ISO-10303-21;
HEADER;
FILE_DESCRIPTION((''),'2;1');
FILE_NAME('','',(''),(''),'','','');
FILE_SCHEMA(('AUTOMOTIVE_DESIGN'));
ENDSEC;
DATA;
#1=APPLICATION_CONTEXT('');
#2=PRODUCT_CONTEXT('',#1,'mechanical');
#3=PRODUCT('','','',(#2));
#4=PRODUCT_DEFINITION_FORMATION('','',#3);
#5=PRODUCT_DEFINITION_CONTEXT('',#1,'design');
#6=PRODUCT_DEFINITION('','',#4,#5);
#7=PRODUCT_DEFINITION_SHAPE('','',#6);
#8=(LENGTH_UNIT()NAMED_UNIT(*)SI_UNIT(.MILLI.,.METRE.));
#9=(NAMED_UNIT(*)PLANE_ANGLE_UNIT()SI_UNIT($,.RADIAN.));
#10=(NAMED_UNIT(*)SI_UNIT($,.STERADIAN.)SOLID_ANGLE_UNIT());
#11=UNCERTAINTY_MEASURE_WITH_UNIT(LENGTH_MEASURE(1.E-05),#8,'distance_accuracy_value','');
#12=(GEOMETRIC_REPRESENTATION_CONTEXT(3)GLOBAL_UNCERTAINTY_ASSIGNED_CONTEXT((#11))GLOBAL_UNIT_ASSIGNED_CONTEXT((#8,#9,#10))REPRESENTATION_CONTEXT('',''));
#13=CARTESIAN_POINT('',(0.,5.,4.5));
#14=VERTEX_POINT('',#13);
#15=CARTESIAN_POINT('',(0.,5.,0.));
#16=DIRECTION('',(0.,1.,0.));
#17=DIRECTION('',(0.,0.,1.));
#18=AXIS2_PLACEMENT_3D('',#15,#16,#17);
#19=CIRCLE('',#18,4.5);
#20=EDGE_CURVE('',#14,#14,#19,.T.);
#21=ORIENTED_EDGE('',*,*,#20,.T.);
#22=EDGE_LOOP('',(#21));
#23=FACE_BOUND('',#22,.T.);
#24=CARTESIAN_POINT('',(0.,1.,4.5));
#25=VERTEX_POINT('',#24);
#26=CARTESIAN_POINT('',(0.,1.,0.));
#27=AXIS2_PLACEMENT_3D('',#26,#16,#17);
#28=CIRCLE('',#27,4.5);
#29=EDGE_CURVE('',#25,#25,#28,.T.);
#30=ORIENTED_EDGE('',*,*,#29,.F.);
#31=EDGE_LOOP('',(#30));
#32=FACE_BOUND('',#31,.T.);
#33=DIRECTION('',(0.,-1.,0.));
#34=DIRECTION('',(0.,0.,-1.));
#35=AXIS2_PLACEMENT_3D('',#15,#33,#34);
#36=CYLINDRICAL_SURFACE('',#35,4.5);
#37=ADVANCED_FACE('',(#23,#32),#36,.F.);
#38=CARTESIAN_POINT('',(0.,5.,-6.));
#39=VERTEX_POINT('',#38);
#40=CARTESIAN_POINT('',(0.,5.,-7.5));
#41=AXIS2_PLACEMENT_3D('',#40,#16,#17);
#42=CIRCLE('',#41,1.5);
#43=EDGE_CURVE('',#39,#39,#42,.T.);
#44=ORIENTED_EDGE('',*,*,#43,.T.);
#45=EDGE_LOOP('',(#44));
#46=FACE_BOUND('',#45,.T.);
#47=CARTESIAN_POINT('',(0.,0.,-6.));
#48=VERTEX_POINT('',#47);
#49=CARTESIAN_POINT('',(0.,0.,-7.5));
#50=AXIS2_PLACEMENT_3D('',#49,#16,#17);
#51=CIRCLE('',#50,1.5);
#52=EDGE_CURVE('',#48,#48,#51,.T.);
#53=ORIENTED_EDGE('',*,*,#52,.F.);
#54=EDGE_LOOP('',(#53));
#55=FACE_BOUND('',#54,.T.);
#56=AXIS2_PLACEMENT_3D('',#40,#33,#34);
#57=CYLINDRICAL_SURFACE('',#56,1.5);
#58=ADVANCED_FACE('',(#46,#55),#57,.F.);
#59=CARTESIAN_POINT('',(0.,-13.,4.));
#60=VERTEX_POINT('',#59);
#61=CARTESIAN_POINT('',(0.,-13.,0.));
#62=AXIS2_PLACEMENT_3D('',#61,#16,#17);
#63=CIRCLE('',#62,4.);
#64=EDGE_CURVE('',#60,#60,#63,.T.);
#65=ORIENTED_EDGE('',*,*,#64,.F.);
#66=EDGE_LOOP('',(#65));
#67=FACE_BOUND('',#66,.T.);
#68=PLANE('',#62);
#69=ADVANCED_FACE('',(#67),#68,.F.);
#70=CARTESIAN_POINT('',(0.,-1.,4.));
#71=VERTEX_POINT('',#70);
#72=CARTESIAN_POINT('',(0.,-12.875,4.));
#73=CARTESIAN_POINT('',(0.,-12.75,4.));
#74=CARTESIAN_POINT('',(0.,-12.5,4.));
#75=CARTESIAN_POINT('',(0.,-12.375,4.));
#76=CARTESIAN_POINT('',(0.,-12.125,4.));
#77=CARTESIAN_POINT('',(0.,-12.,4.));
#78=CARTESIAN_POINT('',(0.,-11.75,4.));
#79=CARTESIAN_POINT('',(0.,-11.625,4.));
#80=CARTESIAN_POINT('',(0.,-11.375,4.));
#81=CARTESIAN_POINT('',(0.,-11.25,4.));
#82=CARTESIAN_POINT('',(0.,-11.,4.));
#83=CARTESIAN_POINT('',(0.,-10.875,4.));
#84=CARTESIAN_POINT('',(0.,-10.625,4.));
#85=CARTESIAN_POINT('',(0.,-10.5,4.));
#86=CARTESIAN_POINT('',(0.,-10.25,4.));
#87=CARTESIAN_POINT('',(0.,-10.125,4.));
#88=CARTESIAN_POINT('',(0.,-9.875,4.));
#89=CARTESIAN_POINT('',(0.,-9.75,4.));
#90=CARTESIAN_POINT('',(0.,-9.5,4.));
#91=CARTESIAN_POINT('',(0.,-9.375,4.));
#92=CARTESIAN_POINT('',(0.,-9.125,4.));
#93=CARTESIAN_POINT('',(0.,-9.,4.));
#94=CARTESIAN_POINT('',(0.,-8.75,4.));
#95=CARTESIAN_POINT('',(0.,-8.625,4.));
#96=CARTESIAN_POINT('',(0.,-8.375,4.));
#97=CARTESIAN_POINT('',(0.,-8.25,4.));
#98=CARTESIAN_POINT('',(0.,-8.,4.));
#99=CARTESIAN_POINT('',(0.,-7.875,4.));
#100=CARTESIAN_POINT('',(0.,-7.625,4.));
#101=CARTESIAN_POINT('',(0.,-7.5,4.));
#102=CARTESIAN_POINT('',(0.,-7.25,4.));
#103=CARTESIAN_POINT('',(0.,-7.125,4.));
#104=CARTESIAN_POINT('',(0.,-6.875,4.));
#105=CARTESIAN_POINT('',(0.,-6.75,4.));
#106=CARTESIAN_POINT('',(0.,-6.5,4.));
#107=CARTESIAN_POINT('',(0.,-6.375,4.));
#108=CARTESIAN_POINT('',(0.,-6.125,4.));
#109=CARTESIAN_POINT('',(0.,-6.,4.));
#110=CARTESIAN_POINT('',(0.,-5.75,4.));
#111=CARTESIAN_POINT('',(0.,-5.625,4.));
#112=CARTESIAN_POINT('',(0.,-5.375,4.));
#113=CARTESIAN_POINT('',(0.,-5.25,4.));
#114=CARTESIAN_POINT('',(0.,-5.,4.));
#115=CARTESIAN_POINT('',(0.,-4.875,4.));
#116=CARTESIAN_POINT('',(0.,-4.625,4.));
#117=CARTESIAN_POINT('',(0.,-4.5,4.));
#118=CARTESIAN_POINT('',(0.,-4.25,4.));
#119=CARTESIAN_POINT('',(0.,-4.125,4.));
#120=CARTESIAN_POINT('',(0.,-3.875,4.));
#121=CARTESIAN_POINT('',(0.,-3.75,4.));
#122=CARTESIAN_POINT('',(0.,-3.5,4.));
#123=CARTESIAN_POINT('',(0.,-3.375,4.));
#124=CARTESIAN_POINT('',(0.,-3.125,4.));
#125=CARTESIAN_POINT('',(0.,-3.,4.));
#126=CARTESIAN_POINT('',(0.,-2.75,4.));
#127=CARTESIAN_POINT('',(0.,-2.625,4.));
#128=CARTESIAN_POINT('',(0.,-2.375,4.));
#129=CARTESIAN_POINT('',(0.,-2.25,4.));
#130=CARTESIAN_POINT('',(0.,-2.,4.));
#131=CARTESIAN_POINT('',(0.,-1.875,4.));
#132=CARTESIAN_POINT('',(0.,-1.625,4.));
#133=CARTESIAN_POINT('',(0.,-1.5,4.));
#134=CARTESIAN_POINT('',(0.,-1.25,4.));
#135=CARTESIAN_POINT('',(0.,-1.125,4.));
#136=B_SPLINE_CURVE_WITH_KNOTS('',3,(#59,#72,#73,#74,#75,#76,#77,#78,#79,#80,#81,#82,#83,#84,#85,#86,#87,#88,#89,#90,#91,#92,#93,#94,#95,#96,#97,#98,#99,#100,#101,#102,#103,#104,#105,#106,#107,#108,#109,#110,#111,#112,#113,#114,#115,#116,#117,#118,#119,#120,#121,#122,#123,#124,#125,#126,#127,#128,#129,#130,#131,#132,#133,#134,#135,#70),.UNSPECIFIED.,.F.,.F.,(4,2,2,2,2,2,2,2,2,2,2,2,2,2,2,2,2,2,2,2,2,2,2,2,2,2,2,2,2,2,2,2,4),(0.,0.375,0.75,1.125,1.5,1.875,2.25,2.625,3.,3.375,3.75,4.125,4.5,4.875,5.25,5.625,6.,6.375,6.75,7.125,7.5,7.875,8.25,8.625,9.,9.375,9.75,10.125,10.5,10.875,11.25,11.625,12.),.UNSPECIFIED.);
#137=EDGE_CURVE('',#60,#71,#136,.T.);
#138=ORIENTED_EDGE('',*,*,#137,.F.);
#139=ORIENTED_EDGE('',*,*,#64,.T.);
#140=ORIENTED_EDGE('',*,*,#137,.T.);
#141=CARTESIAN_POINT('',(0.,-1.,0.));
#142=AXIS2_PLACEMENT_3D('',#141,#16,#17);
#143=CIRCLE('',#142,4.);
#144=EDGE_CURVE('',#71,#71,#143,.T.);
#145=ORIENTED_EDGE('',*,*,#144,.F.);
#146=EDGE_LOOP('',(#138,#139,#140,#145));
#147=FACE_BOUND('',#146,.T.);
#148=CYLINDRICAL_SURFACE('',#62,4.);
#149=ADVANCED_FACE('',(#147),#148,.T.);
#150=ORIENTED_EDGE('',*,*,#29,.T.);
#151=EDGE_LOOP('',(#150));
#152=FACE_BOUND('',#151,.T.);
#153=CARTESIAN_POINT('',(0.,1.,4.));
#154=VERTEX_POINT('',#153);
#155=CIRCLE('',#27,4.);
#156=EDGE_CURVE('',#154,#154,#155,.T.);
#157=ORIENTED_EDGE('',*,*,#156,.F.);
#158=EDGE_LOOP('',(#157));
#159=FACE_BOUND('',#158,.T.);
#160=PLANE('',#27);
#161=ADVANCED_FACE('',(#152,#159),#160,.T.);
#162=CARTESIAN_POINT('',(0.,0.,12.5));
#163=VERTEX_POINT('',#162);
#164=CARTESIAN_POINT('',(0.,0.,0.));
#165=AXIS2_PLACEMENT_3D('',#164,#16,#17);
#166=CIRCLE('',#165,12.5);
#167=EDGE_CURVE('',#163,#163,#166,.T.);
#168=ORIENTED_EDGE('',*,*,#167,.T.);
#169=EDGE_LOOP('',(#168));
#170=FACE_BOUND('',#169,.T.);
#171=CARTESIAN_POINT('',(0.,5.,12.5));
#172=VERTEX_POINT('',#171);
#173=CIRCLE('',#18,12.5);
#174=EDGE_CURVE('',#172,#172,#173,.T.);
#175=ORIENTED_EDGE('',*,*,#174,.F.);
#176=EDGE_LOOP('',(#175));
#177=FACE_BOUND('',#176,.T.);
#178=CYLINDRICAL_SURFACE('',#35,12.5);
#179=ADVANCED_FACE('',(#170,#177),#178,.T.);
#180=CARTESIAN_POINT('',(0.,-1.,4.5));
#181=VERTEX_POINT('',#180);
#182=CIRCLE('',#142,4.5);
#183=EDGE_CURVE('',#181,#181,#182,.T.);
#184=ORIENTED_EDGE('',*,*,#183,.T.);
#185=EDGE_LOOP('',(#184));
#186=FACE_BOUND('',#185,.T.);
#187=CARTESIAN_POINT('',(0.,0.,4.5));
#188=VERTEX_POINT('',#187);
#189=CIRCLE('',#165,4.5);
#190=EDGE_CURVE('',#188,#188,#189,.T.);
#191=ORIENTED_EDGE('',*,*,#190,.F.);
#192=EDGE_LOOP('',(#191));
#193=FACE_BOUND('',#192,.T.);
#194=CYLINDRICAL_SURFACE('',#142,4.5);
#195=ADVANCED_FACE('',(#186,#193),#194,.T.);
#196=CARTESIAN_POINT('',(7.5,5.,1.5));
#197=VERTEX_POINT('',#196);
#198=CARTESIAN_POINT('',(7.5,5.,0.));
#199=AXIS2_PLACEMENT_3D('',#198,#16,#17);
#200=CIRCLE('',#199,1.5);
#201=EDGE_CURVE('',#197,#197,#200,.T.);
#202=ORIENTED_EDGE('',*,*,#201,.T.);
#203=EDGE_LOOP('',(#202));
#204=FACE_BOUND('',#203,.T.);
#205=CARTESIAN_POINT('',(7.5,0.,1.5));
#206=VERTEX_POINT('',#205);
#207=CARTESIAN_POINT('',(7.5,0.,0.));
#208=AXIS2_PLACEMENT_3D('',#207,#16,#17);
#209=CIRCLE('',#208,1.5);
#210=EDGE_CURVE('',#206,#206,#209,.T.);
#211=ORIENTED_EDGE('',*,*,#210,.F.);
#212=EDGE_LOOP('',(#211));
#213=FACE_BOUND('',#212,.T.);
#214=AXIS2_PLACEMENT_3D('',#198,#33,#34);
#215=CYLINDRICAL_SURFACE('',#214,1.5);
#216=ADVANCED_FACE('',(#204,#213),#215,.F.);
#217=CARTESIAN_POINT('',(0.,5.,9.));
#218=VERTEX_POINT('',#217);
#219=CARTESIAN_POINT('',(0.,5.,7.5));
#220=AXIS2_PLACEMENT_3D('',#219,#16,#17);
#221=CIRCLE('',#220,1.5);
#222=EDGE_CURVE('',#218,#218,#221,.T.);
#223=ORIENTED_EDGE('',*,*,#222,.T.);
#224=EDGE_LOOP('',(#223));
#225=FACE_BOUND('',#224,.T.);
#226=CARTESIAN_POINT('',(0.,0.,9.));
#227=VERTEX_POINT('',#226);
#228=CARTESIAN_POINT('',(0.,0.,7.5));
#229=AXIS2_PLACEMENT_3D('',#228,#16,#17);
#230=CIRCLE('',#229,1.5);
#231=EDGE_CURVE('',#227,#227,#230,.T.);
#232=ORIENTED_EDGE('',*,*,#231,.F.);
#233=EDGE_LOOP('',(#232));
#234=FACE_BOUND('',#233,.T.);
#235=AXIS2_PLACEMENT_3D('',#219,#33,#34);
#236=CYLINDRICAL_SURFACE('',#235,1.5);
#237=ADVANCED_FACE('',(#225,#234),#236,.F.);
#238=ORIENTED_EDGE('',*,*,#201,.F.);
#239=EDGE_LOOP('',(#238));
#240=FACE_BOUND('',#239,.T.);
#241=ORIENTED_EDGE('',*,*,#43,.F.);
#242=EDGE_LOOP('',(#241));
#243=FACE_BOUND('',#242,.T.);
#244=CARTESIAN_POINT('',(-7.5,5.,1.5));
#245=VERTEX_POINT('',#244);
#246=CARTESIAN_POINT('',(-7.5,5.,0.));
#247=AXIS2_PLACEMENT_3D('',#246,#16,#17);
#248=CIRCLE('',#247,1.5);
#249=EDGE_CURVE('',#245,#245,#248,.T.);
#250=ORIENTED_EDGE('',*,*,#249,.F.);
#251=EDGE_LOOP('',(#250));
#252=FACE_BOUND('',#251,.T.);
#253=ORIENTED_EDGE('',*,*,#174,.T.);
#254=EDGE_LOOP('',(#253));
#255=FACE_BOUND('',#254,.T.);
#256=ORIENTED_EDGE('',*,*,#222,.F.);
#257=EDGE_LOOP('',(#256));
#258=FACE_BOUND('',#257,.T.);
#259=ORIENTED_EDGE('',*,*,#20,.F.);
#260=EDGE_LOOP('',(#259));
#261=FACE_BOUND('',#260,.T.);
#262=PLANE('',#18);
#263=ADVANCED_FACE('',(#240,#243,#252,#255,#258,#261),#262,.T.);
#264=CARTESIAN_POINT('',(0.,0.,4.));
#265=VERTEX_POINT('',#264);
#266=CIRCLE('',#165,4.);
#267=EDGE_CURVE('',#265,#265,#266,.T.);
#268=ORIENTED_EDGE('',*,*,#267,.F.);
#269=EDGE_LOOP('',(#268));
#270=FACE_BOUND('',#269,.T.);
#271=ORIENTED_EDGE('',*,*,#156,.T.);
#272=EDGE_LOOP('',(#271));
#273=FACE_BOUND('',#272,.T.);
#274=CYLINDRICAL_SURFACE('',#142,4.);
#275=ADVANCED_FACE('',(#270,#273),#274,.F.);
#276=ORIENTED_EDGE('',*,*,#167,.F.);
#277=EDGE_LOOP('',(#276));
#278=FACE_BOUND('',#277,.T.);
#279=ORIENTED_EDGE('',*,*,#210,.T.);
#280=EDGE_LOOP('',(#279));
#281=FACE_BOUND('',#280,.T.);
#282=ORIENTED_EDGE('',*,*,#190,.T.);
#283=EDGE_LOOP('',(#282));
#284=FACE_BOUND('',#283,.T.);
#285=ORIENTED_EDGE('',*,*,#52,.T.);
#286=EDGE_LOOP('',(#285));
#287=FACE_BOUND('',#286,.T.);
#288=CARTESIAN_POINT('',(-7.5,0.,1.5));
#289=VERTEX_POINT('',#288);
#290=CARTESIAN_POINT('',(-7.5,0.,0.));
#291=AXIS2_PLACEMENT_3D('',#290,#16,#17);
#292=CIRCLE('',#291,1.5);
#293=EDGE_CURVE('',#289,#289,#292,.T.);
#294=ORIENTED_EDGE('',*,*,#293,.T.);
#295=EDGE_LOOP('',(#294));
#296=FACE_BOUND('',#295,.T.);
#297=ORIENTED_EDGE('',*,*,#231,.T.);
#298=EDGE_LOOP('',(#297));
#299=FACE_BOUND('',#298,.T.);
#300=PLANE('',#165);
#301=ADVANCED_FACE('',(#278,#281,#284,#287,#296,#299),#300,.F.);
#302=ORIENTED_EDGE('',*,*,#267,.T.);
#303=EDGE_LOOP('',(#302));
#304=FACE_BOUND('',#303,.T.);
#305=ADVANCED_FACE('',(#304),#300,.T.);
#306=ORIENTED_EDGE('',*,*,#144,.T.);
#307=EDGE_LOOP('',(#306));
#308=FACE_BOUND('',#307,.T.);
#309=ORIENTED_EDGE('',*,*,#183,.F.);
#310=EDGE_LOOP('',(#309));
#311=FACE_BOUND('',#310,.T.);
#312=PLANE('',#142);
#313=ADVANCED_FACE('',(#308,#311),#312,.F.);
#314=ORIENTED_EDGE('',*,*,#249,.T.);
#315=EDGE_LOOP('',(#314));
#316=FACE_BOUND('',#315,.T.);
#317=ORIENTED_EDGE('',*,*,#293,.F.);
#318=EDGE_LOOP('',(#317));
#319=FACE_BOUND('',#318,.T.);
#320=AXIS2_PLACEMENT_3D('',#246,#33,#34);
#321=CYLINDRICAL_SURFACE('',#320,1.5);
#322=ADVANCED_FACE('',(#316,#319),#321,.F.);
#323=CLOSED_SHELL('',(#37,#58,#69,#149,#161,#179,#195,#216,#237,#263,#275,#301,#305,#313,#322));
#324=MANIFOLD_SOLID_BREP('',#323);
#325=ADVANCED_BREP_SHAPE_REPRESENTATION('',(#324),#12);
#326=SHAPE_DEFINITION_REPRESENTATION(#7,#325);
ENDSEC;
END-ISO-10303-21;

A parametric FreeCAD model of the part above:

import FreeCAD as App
import Part
import Sketcher
Q = App.Units.Quantity

doc = App.newDocument("Part")
body = doc.addObject("PartDesign::Body", "Body")

sketch1 = body.newObject("Sketcher::SketchObject", "Sketch")
sketch1.AttachmentSupport = (doc.getObject("XZ_Plane"), [""])
sketch1.MapMode = "FlatFace"
sketch1.addGeometry(Part.Circle(App.Vector(0, 0, 0), App.Vector(0, 0, 1), 12.5), False)
sketch1.addGeometry(Part.Circle(App.Vector(0, -7.5, 0), App.Vector(0, 0, 1), 1.5), False)
sketch1.addGeometry(Part.Circle(App.Vector(-7.5, 0, 0), App.Vector(0, 0, 1), 1.5), False)
sketch1.addGeometry(Part.Circle(App.Vector(7.5, 0, 0), App.Vector(0, 0, 1), 1.5), False)
sketch1.addGeometry(Part.Circle(App.Vector(0, 0, 0), App.Vector(0, 0, 1), 4.5), False)
sketch1.addGeometry(Part.Circle(App.Vector(0, 7.5, 0), App.Vector(0, 0, 1), 1.5), False)
sketch1.addConstraint(Sketcher.Constraint("Coincident", 0, 3, -1, 1))
sketch1.addConstraint(Sketcher.Constraint("Coincident", 4, 3, -1, 1))
sketch1.addConstraint(Sketcher.Constraint("Equal", 1, 2))
sketch1.addConstraint(Sketcher.Constraint("Equal", 2, 3))
sketch1.addConstraint(Sketcher.Constraint("Equal", 3, 5))
sketch1.addConstraint(Sketcher.Constraint("Symmetric", 2, 3, 3, 3, -1, 1))
sketch1.addConstraint(Sketcher.Constraint("Symmetric", 1, 3, 5, 3, -1, 1))
sketch1.addConstraint(Sketcher.Constraint("PointOnObject", 1, 3, -2))
sketch1.addConstraint(Sketcher.Constraint("PointOnObject", 2, 3, -1))
sketch1.addConstraint(Sketcher.Constraint("Diameter", 0, Q("25 mm")))
sketch1.addConstraint(Sketcher.Constraint("Diameter", 1, Q("3 mm")))
sketch1.addConstraint(Sketcher.Constraint("Diameter", 4, Q("9 mm")))
sketch1.addConstraint(Sketcher.Constraint("DistanceX", 2, 3, 3, 3, Q("15 mm")))
sketch1.addConstraint(Sketcher.Constraint("DistanceY", 1, 3, 5, 3, Q("15 mm")))
pad1 = body.newObject("PartDesign::Pad", "Pad")
pad1.Profile = sketch1
pad1.Length = 5
pad1.Reversed = True
body2 = doc.addObject("PartDesign::Body", "Body001")

sketch2 = body2.newObject("Sketcher::SketchObject", "Sketch001")
sketch2.AttachmentSupport = (doc.getObject("XZ_Plane001"), [""])
sketch2.MapMode = "FlatFace"
sketch2.addGeometry(Part.Circle(App.Vector(0, 0, 0), App.Vector(0, 0, 1), 4), False)
sketch2.addConstraint(Sketcher.Constraint("Coincident", 0, 3, -1, 1))
sketch2.addConstraint(Sketcher.Constraint("Diameter", 0, Q("8 mm")))
pad2 = body2.newObject("PartDesign::Pad", "Pad001")
pad2.Profile = sketch2
pad2.Length = 13
body.AllowCompound = True
doc.recompute()

boolean = body.newObject("PartDesign::Boolean", "Boolean")
boolean.Type = "Fuse"
boolean.addObjects([body2])

sketch3 = body.newObject("Sketcher::SketchObject", "Sketch002")
sketch3.AttachmentSupport = (doc.getObject("XZ_Plane"), [""])
sketch3.MapMode = "FlatFace"
sketch3.addGeometry(Part.Circle(App.Vector(0, 0, 0), App.Vector(0, 0, 1), 4.5), False)
sketch3.addGeometry(Part.Circle(App.Vector(0, 0, 0), App.Vector(0, 0, 1), 4), False)
sketch3.addConstraint(Sketcher.Constraint("Coincident", 0, 3, -1, 1))
sketch3.addConstraint(Sketcher.Constraint("Coincident", 1, 3, -1, 1))
sketch3.addConstraint(Sketcher.Constraint("Diameter", 0, Q("9 mm")))
sketch3.addConstraint(Sketcher.Constraint("Diameter", 1, Q("8 mm")))
pad3 = body.newObject("PartDesign::Pad", "Pad002")
pad3.Profile = sketch3
pad3.Type = "TwoLengths"
pad3.Length = 1
pad3.Length2 = 1
pad3.Reversed = True

doc.recompute()
